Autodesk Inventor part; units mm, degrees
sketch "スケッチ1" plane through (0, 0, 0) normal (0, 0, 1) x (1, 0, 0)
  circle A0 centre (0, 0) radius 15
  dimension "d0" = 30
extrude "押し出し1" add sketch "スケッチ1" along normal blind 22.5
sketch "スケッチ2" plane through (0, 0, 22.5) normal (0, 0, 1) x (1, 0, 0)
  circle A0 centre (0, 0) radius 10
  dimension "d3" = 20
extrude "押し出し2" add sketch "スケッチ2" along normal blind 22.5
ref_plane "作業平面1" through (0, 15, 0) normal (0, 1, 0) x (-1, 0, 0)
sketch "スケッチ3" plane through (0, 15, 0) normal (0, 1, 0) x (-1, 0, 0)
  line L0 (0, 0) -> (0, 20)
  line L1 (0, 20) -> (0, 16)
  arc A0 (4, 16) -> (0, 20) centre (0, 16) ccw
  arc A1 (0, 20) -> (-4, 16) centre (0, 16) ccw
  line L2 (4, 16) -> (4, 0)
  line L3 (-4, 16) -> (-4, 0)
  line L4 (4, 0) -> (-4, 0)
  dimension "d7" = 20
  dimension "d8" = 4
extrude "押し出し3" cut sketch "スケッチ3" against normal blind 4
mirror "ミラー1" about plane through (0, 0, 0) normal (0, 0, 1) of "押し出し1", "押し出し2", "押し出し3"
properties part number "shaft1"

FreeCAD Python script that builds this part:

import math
import FreeCAD as App
import Part
import Sketcher

V = App.Vector
Q = App.Units.Quantity

doc = App.newDocument("Part")
body = doc.addObject("PartDesign::Body", "Body")

# Sketch on XY plane
sketch1 = body.newObject("Sketcher::SketchObject", "Sketch")
sketch1.AttachmentSupport = (doc.getObject("XY_Plane"), [""])
sketch1.MapMode = "FlatFace"
sketch1.addGeometry(Part.Circle(V(0, 0, 0), V(0, 0, 1), 15), False)
sketch1.addConstraint([
    Sketcher.Constraint("Coincident", 0, 3, -1, 1),
    Sketcher.Constraint("Diameter", 0, Q("30 mm")),
])
pad1 = body.newObject("PartDesign::Pad", "Pad")
pad1.Profile = sketch1
pad1.Length = 22.5

# Sketch on XY plane
sketch2 = body.newObject("Sketcher::SketchObject", "Sketch001")
sketch2.AttachmentSupport = (doc.getObject("XY_Plane"), [""])
sketch2.MapMode = "FlatFace"
sketch2.AttachmentOffset = App.Placement(V(0, 0, 22.5), App.Rotation())
sketch2.addGeometry(Part.Circle(V(0, 0, 0), V(0, 0, 1), 10), False)
sketch2.addConstraint([
    Sketcher.Constraint("Coincident", 0, 3, -1, 1),
    Sketcher.Constraint("Diameter", 0, Q("20 mm")),
])
pad2 = body.newObject("PartDesign::Pad", "Pad001")
pad2.Profile = sketch2
pad2.Length = 22.5

# Sketch on XZ plane
sketch3 = body.newObject("Sketcher::SketchObject", "Sketch002")
sketch3.AttachmentSupport = (doc.getObject("XZ_Plane"), [""])
sketch3.MapMode = "FlatFace"
sketch3.AttachmentOffset = App.Placement(V(0, 0, -15), App.Rotation())
sketch3.addGeometry([
    Part.LineSegment(V(4, 0, 0), V(-4, 0, 0)),
    Part.LineSegment(V(-4, 0, 0), V(-4, 16, 0)),
    Part.ArcOfCircle(Part.Circle(V(0, 16, 0), V(0, 0, 1), 4), math.radians(0), math.radians(180)),
    Part.LineSegment(V(4, 16, 0), V(4, 0, 0)),
], False)
sketch3.addConstraint([
    Sketcher.Constraint("Coincident", 0, 2, 1, 1),
    Sketcher.Constraint("Tangent", 1, 2, 2, 2),
    Sketcher.Constraint("Tangent", 2, 1, 3, 1),
    Sketcher.Constraint("Coincident", 3, 2, 0, 1),
    Sketcher.Constraint("Horizontal", 0),
    Sketcher.Constraint("Vertical", 1),
    Sketcher.Constraint("Vertical", 3),
    Sketcher.Constraint("Symmetric", 0, 2, 3, 2, -1, 1),
    Sketcher.Constraint("Radius", 2, Q("4 mm")),
    Sketcher.Constraint("DistanceY", 1, 1, 1, 2, Q("16 mm")),
])
pocket1 = body.newObject("PartDesign::Pocket", "Pocket")
pocket1.Profile = sketch3
pocket1.Length = 4
pocket1.Reversed = True
doc.recompute()

mirrored = body.newObject("PartDesign::Mirrored", "Mirrored")
mirrored.Originals = [pad1, pad2, pocket1]
mirrored.MirrorPlane = (doc.getObject("XY_Plane"), [""])
body.Tip = mirrored

doc.recompute()
